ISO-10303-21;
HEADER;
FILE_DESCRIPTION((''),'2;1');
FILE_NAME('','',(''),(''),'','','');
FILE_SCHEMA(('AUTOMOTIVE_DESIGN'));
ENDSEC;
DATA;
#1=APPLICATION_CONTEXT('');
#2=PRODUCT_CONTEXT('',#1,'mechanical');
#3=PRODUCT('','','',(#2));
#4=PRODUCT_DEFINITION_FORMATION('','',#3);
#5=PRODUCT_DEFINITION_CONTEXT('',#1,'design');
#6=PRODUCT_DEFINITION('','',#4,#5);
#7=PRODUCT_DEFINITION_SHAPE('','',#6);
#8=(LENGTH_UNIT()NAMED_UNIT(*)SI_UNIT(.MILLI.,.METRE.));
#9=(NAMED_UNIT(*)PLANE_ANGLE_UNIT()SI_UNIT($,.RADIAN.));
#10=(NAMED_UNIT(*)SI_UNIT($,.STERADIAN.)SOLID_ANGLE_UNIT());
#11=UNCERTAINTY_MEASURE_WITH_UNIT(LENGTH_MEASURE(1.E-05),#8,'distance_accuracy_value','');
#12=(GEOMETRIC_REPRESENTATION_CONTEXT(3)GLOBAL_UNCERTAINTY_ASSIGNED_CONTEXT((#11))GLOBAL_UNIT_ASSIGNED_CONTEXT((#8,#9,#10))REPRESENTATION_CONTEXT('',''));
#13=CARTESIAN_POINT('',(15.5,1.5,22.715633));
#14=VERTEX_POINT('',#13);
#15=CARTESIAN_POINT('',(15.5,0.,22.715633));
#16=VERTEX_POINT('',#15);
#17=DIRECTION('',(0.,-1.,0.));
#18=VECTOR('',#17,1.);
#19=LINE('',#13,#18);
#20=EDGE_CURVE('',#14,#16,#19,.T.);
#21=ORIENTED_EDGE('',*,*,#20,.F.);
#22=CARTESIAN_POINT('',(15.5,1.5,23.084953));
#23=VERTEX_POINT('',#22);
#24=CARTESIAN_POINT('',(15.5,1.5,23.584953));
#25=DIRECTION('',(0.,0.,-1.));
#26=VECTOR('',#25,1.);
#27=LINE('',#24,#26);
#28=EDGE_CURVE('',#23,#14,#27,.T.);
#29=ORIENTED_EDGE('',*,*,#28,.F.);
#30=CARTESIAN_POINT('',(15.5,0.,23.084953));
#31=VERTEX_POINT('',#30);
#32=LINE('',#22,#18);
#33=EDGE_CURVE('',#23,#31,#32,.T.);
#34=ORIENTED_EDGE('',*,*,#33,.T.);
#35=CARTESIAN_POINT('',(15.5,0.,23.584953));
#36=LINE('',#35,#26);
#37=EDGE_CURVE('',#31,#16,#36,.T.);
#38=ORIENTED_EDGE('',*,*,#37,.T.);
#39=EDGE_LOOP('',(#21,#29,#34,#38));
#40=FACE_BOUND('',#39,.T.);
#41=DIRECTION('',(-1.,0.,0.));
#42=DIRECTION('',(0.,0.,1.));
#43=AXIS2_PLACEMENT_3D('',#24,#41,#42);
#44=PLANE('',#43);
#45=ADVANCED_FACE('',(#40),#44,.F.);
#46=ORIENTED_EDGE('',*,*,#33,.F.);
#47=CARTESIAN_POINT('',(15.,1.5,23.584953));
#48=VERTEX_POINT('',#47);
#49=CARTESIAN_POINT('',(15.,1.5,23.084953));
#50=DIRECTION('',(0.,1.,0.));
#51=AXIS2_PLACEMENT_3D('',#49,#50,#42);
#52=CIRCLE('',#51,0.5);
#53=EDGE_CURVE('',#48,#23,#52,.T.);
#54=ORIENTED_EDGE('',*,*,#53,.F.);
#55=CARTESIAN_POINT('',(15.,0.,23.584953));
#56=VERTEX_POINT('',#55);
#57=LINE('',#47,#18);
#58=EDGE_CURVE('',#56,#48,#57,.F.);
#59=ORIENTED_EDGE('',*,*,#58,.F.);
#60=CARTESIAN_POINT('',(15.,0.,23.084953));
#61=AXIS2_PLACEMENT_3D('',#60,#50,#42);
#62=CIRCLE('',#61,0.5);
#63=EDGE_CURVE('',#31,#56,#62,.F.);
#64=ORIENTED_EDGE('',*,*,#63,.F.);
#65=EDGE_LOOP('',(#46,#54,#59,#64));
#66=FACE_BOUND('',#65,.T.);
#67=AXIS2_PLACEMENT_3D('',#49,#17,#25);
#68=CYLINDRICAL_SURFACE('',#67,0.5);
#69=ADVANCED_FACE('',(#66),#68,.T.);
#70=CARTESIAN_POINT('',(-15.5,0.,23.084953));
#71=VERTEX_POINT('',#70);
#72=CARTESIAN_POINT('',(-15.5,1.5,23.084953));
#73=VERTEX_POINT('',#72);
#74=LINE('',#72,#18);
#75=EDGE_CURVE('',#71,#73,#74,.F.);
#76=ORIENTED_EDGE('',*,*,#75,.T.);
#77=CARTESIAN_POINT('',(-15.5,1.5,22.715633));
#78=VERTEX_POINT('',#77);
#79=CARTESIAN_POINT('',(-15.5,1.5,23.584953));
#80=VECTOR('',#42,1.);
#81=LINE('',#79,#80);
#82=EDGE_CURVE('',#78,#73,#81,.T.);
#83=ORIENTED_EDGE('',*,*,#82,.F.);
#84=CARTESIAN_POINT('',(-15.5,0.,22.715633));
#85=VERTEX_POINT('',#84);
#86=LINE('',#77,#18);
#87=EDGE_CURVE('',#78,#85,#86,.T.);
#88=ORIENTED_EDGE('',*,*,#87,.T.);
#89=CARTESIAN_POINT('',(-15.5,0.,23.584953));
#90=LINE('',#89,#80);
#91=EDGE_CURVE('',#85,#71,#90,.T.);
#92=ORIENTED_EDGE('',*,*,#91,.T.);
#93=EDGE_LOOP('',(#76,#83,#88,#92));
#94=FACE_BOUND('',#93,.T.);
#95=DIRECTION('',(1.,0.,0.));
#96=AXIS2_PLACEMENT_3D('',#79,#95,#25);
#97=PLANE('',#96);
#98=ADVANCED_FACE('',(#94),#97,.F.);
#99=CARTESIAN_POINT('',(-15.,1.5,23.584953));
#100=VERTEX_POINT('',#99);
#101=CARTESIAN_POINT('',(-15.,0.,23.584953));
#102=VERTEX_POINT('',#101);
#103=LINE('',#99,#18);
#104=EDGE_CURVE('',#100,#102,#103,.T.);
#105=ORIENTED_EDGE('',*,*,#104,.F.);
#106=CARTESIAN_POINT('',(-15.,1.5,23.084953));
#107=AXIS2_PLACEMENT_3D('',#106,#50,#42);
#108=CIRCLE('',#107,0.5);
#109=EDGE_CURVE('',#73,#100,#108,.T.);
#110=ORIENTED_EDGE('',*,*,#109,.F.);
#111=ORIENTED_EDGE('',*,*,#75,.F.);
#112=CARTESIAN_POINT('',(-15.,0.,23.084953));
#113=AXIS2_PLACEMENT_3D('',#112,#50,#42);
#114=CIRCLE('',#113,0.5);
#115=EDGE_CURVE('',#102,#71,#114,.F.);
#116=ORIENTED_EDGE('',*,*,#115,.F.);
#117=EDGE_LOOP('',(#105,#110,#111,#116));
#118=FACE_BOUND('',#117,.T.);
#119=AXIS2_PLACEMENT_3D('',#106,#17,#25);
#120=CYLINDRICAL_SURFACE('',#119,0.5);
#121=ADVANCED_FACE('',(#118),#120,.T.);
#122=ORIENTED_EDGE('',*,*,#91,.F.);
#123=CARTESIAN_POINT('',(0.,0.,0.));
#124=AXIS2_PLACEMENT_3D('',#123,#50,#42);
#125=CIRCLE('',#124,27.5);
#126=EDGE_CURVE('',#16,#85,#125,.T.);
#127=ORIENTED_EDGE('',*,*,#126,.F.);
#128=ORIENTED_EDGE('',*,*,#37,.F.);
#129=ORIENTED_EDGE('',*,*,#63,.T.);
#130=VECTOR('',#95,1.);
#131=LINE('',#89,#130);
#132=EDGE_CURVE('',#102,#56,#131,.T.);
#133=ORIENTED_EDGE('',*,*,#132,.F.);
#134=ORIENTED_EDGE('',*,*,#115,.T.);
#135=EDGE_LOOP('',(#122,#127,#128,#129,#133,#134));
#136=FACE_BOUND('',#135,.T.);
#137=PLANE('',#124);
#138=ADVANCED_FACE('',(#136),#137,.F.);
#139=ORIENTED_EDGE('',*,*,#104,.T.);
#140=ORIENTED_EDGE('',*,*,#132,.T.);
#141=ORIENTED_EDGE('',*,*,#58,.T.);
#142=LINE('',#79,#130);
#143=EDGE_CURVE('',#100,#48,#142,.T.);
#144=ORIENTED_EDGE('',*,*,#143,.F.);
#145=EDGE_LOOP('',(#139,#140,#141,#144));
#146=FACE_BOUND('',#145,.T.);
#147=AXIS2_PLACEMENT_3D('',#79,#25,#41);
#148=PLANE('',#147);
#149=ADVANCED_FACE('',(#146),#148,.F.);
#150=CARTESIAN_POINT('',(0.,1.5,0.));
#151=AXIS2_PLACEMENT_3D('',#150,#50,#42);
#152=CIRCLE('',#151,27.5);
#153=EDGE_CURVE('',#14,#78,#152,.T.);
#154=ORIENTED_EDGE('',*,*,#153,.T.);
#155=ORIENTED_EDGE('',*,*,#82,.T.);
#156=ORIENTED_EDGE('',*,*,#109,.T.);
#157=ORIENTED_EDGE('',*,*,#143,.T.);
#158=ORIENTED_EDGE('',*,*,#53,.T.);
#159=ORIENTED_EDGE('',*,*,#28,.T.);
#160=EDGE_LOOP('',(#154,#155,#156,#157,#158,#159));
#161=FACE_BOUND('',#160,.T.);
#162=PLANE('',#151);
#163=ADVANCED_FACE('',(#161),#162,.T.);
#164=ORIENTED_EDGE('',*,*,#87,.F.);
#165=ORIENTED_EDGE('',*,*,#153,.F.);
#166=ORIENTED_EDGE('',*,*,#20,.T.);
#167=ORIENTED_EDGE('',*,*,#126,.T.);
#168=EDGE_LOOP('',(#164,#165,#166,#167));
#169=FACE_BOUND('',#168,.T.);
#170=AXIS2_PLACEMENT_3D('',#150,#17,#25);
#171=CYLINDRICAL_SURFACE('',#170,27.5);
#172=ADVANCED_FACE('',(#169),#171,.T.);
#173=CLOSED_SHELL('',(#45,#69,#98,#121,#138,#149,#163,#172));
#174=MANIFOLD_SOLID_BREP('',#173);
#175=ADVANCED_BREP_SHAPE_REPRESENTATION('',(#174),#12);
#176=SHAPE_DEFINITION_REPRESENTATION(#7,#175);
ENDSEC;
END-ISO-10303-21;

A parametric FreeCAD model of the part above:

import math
import FreeCAD as App
import Part
import Sketcher

V = App.Vector


def edges_at(feature, points):
    """Names of the edges that pass closest to the given points."""
    edges = feature.Shape.Edges
    near = lambda p: min(range(len(edges)), key=lambda i: edges[i].distToShape(Part.Vertex(*p))[0])
    return sorted({f"Edge{near(p) + 1}" for p in points})

doc = App.newDocument("Part")
params = doc.addObject("Spreadsheet::Sheet", "Params")
for row, (alias, value) in enumerate([
    ("sketch1_radius", "27.5 mm"),
    ("sketch1_width", "31 mm"),
    ("pad1_length", "1.5 mm"),
    ("fillet_radius", "0.5 mm"),
], start=1):
    params.set(f"A{row}", alias)
    params.set(f"B{row}", "=" + value)
    params.setAlias(f"B{row}", alias)

body = doc.addObject("PartDesign::Body", "Body")

sketch1 = body.newObject("Sketcher::SketchObject", "Sketch")
sketch1.AttachmentSupport = (doc.getObject("XZ_Plane"), [""])
sketch1.MapMode = "FlatFace"
sketch1.addGeometry(Part.LineSegment(V(-15.5, 23.6, 0), V(15.5, 23.6, 0)), False)
sketch1.addGeometry(Part.LineSegment(V(15.5, 23.6, 0), V(15.5, 22.7, 0)), False)
sketch1.addGeometry(Part.ArcOfCircle(Part.Circle(V(0, 0, 0), V(0, 0, 1), 27.5), math.radians(124), math.radians(416)), False)
sketch1.addGeometry(Part.LineSegment(V(-15.5, 22.7, 0), V(-15.5, 23.6, 0)), False)
sketch1.addConstraint(Sketcher.Constraint("Coincident", 0, 2, 1, 1))
sketch1.addConstraint(Sketcher.Constraint("Coincident", 1, 2, 2, 2))
sketch1.addConstraint(Sketcher.Constraint("Coincident", 2, 1, 3, 1))
sketch1.addConstraint(Sketcher.Constraint("Coincident", 3, 2, 0, 1))
sketch1.addConstraint(Sketcher.Constraint("Horizontal", 0))
sketch1.addConstraint(Sketcher.Constraint("Vertical", 1))
sketch1.addConstraint(Sketcher.Constraint("Vertical", 3))
sketch1.addConstraint(Sketcher.Constraint("Coincident", 2, 3, -1, 1))
sketch1.addConstraint(Sketcher.Constraint("Horizontal", 1, 2, 2, 1))
sketch1.addConstraint(Sketcher.Constraint("Radius", 2, 27.5))
sketch1.addConstraint(Sketcher.Constraint("DistanceX", 0, 1, 0, 2, 31.0))
sketch1.addConstraint(Sketcher.Constraint("DistanceY", 1, 2, 1, 1, 0.869319))
sketch1.setExpression("Constraints[9]", "Params.sketch1_radius")
sketch1.setExpression("Constraints[10]", "Params.sketch1_width")
pad1 = body.newObject("PartDesign::Pad", "Pad")
pad1.Profile = sketch1
pad1.setExpression("Length", "Params.pad1_length")
pad1.Reversed = True
doc.recompute()

fillet = body.newObject("PartDesign::Fillet", "Fillet")
fillet.Base = (pad1, edges_at(pad1, [(15.5, 0.75, 23.585), (-15.5, 0.75, 23.585)]))
fillet.setExpression("Radius", "Params.fillet_radius")

doc.recompute()
